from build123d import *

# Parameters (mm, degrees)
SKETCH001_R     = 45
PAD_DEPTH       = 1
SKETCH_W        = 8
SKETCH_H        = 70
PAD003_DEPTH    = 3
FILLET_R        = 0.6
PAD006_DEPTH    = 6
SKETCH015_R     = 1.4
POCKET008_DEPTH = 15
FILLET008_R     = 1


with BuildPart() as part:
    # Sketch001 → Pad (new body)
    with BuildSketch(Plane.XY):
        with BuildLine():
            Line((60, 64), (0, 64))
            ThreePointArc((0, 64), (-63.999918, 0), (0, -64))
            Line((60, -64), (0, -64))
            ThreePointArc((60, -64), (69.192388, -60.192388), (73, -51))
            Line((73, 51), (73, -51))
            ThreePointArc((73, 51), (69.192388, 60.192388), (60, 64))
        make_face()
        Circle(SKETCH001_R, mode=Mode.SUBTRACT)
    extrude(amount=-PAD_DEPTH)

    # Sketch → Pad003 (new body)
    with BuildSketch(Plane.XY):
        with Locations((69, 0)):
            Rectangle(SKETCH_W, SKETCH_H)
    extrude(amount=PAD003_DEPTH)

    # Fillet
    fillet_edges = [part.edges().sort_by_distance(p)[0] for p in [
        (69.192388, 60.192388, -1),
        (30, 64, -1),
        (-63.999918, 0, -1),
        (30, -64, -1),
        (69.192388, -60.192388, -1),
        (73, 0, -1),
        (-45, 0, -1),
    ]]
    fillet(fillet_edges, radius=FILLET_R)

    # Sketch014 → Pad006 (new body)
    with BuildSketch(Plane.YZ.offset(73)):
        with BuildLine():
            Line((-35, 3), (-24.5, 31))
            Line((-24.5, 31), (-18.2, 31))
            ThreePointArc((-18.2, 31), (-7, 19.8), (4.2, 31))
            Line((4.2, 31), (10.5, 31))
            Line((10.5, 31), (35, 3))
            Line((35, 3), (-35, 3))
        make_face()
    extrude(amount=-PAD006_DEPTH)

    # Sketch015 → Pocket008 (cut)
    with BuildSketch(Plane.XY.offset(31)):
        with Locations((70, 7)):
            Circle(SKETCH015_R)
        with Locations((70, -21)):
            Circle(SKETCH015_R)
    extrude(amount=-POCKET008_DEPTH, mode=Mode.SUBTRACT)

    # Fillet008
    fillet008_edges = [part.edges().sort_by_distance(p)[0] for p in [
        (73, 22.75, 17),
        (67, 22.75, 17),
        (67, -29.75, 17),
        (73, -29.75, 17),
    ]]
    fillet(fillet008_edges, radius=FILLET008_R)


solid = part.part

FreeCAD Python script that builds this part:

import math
import FreeCAD as App
import Part
import Sketcher
from FreeCAD import Vector
Q = App.Units.Quantity


def edges_at(feature, points):
    """Names of the edges that pass closest to the given points."""
    edges = feature.Shape.Edges
    near = lambda p: min(range(len(edges)), key=lambda i: edges[i].distToShape(Part.Vertex(*p))[0])
    return sorted({f"Edge{near(p) + 1}" for p in points})


def add_polygon(sketch, points):
    """Adds a closed chain of lines whose ends are joined by coincident constraints."""
    first, n = sketch.GeometryCount, len(points)
    for a, b in zip(points, points[1:] + points[:1]):
        sketch.addGeometry(Part.LineSegment(App.Vector(*a, 0), App.Vector(*b, 0)), False)
    for i in range(n):
        sketch.addConstraint(Sketcher.Constraint("Coincident", first + i, 2, first + (i + 1) % n, 1))

doc = App.newDocument("Part")
body = doc.addObject("PartDesign::Body", "Body")

# Sketch on XY plane
sketch1 = body.newObject("Sketcher::SketchObject", "Sketch")
sketch1.AttachmentSupport = (doc.getObject("XY_Plane"), [""])
sketch1.MapMode = "FlatFace"
sketch1.addGeometry(Part.LineSegment(Vector(60, 64, 0), Vector(0, 64, 0)), False)
sketch1.addGeometry(Part.ArcOfCircle(Part.Circle(Vector(0.000082, 0, 0), Vector(0, 0, 1), 64), math.radians(90.000073), math.radians(269.999927)), False)
sketch1.addGeometry(Part.LineSegment(Vector(0, -64, 0), Vector(60, -64, 0)), False)
sketch1.addGeometry(Part.ArcOfCircle(Part.Circle(Vector(59.999999, -50.999999, 0), Vector(0, 0, 1), 13.000001), math.radians(-89.999998), math.radians(-0.000002)), False)
sketch1.addGeometry(Part.LineSegment(Vector(73, -51, 0), Vector(73, 51, 0)), False)
sketch1.addGeometry(Part.ArcOfCircle(Part.Circle(Vector(59.999999, 50.999999, 0), Vector(0, 0, 1), 13.000001), math.radians(0.000002), math.radians(89.999998)), False)
sketch1.addGeometry(Part.Circle(Vector(0, 0, 0), Vector(0, 0, 1), 45), False)
sketch1.addConstraint(Sketcher.Constraint("Coincident", 0, 2, 1, 1))
sketch1.addConstraint(Sketcher.Constraint("Coincident", 1, 2, 2, 1))
sketch1.addConstraint(Sketcher.Constraint("Coincident", 2, 2, 3, 1))
sketch1.addConstraint(Sketcher.Constraint("Coincident", 3, 2, 4, 1))
sketch1.addConstraint(Sketcher.Constraint("Coincident", 4, 2, 5, 1))
sketch1.addConstraint(Sketcher.Constraint("Coincident", 5, 2, 0, 1))
sketch1.addConstraint(Sketcher.Constraint("Horizontal", 0))
sketch1.addConstraint(Sketcher.Constraint("Horizontal", 2))
sketch1.addConstraint(Sketcher.Constraint("Vertical", 4))
sketch1.addConstraint(Sketcher.Constraint("Coincident", 6, 3, -1, 1))
sketch1.addConstraint(Sketcher.Constraint("PointOnObject", 1, 3, -1))
sketch1.addConstraint(Sketcher.Constraint("PointOnObject", 0, 2, -2))
sketch1.addConstraint(Sketcher.Constraint("PointOnObject", 1, 2, -2))
sketch1.addConstraint(Sketcher.Constraint("Diameter", 6, Q("90 mm")))
sketch1.addConstraint(Sketcher.Constraint("Radius", 1, Q("64 mm")))
sketch1.addConstraint(Sketcher.Constraint("Radius", 3, Q("13.000001 mm")))
sketch1.addConstraint(Sketcher.Constraint("Radius", 5, Q("13.000001 mm")))
sketch1.addConstraint(Sketcher.Constraint("DistanceX", 0, 2, 0, 1, Q("60 mm")))
sketch1.addConstraint(Sketcher.Constraint("DistanceX", 2, 1, 2, 2, Q("60 mm")))
sketch1.addConstraint(Sketcher.Constraint("DistanceY", 4, 1, 4, 2, Q("102 mm")))
sketch1.addConstraint(Sketcher.Constraint("DistanceX", -1, 1, 3, 3, Q("59.999999 mm")))
sketch1.addConstraint(Sketcher.Constraint("DistanceY", 3, 2, -1, 1, Q("51 mm")))
sketch1.addConstraint(Sketcher.Constraint("DistanceX", 1, 3, 3, 3, Q("59.999917 mm")))
pad1 = body.newObject("PartDesign::Pad", "Pad")
pad1.Profile = sketch1
pad1.Length = 1
pad1.Reversed = True

# Sketch on XY plane
sketch2 = body.newObject("Sketcher::SketchObject", "Sketch001")
sketch2.AttachmentSupport = (doc.getObject("XY_Plane"), [""])
sketch2.MapMode = "FlatFace"
add_polygon(sketch2, [(65, 35), (65, -35), (73, -35), (73, 35)])  # lines 0-3
sketch2.addConstraint(Sketcher.Constraint("Vertical", 0))
sketch2.addConstraint(Sketcher.Constraint("Horizontal", 1))
sketch2.addConstraint(Sketcher.Constraint("Vertical", 2))
sketch2.addConstraint(Sketcher.Constraint("Horizontal", 3))
sketch2.addConstraint(Sketcher.Constraint("DistanceX", 1, 1, 1, 2, Q("8 mm")))
sketch2.addConstraint(Sketcher.Constraint("DistanceY", 0, 2, 0, 1, Q("70 mm")))
sketch2.addConstraint(Sketcher.Constraint("DistanceX", -1, 1, 0, 2, Q("65 mm")))
sketch2.addConstraint(Sketcher.Constraint("DistanceY", 0, 2, -1, 1, Q("35 mm")))
pad2 = body.newObject("PartDesign::Pad", "Pad001")
pad2.Profile = sketch2
pad2.Length = 3
doc.recompute()

fillet = body.newObject("PartDesign::Fillet", "Fillet")
fillet.Base = (pad2, edges_at(pad2, [
    (69.192, 60.192, -1),
    (30, 64, -1),
    (-64, 0, -1),
    (30, -64, -1),
    (69.192, -60.192, -1),
    (73, 0, -1),
    (-45, 0, -1),
]))
fillet.Radius = 0.6

# Sketch on YZ plane
sketch3 = body.newObject("Sketcher::SketchObject", "Sketch002")
sketch3.AttachmentSupport = (doc.getObject("YZ_Plane"), [""])
sketch3.MapMode = "FlatFace"
sketch3.AttachmentOffset = App.Placement(Vector(0, 0, 73), App.Rotation())
sketch3.addGeometry(Part.LineSegment(Vector(-24.5, 31, 0), Vector(-35, 3, 0)), False)
sketch3.addGeometry(Part.LineSegment(Vector(-35, 3, 0), Vector(35, 3, 0)), False)
sketch3.addGeometry(Part.LineSegment(Vector(35, 3, 0), Vector(10.5, 31, 0)), False)
sketch3.addGeometry(Part.LineSegment(Vector(10.5, 31, 0), Vector(4.2, 31, 0)), False)
sketch3.addGeometry(Part.ArcOfCircle(Part.Circle(Vector(-7, 31, 0), Vector(0, 0, 1), 11.2), math.radians(180), math.radians(360)), False)
sketch3.addGeometry(Part.LineSegment(Vector(-18.2, 31, 0), Vector(-24.5, 31, 0)), False)
sketch3.addConstraint(Sketcher.Constraint("Coincident", 0, 2, 1, 1))
sketch3.addConstraint(Sketcher.Constraint("Coincident", 1, 2, 2, 1))
sketch3.addConstraint(Sketcher.Constraint("Coincident", 2, 2, 3, 1))
sketch3.addConstraint(Sketcher.Constraint("Coincident", 3, 2, 4, 2))
sketch3.addConstraint(Sketcher.Constraint("Coincident", 4, 1, 5, 1))
sketch3.addConstraint(Sketcher.Constraint("Coincident", 5, 2, 0, 1))
sketch3.addConstraint(Sketcher.Constraint("Horizontal", 1))
sketch3.addConstraint(Sketcher.Constraint("Horizontal", 3))
sketch3.addConstraint(Sketcher.Constraint("Horizontal", 5))
sketch3.addConstraint(Sketcher.Constraint("Horizontal", 4, 3, 2, 2))
sketch3.addConstraint(Sketcher.Constraint("Horizontal", 3, 2, 4, 1))
sketch3.addConstraint(Sketcher.Constraint("Equal", 3, 5))
sketch3.addConstraint(Sketcher.Constraint("Radius", 4, Q("11.2 mm")))
sketch3.addConstraint(Sketcher.Constraint("DistanceX", 1, 1, 1, 2, Q("70 mm")))
sketch3.addConstraint(Sketcher.Constraint("DistanceX", 3, 2, 3, 1, Q("6.3 mm")))
sketch3.addConstraint(Sketcher.Constraint("DistanceX", 4, 3, -1, 1, Q("7 mm")))
sketch3.addConstraint(Sketcher.Constraint("DistanceY", -1, 1, 4, 3, Q("31 mm")))
sketch3.addConstraint(Sketcher.Constraint("DistanceX", 0, 2, -1, 1, Q("35 mm")))
sketch3.addConstraint(Sketcher.Constraint("DistanceY", -1, 1, 0, 2, Q("3 mm")))
pad3 = body.newObject("PartDesign::Pad", "Pad002")
pad3.Profile = sketch3
pad3.Length = 6
pad3.Reversed = True

# Sketch on XY plane
sketch4 = body.newObject("Sketcher::SketchObject", "Sketch003")
sketch4.AttachmentSupport = (doc.getObject("XY_Plane"), [""])
sketch4.MapMode = "FlatFace"
sketch4.AttachmentOffset = App.Placement(Vector(0, 0, 31), App.Rotation())
sketch4.addGeometry(Part.Circle(Vector(70, 7, 0), Vector(0, 0, 1), 1.4), False)
sketch4.addGeometry(Part.Circle(Vector(70, -21, 0), Vector(0, 0, 1), 1.4), False)
sketch4.addConstraint(Sketcher.Constraint("Equal", 0, 1))
sketch4.addConstraint(Sketcher.Constraint("Vertical", 0, 3, 1, 3))
sketch4.addConstraint(Sketcher.Constraint("Diameter", 0, Q("2.8 mm")))
sketch4.addConstraint(Sketcher.Constraint("DistanceX", -1, 1, 0, 3, Q("70 mm")))
sketch4.addConstraint(Sketcher.Constraint("DistanceY", -1, 1, 0, 3, Q("7 mm")))
sketch4.addConstraint(Sketcher.Constraint("DistanceY", 1, 3, -1, 1, Q("21 mm")))
pocket1 = body.newObject("PartDesign::Pocket", "Pocket")
pocket1.Profile = sketch4
pocket1.Length = 15
doc.recompute()

fillet2 = body.newObject("PartDesign::Fillet", "Fillet001")
fillet2.Base = (pocket1, edges_at(pocket1, [
    (73, 22.75, 17),
    (67, 22.75, 17),
    (67, -29.75, 17),
    (73, -29.75, 17),
]))
fillet2.Radius = 1

doc.recompute()
